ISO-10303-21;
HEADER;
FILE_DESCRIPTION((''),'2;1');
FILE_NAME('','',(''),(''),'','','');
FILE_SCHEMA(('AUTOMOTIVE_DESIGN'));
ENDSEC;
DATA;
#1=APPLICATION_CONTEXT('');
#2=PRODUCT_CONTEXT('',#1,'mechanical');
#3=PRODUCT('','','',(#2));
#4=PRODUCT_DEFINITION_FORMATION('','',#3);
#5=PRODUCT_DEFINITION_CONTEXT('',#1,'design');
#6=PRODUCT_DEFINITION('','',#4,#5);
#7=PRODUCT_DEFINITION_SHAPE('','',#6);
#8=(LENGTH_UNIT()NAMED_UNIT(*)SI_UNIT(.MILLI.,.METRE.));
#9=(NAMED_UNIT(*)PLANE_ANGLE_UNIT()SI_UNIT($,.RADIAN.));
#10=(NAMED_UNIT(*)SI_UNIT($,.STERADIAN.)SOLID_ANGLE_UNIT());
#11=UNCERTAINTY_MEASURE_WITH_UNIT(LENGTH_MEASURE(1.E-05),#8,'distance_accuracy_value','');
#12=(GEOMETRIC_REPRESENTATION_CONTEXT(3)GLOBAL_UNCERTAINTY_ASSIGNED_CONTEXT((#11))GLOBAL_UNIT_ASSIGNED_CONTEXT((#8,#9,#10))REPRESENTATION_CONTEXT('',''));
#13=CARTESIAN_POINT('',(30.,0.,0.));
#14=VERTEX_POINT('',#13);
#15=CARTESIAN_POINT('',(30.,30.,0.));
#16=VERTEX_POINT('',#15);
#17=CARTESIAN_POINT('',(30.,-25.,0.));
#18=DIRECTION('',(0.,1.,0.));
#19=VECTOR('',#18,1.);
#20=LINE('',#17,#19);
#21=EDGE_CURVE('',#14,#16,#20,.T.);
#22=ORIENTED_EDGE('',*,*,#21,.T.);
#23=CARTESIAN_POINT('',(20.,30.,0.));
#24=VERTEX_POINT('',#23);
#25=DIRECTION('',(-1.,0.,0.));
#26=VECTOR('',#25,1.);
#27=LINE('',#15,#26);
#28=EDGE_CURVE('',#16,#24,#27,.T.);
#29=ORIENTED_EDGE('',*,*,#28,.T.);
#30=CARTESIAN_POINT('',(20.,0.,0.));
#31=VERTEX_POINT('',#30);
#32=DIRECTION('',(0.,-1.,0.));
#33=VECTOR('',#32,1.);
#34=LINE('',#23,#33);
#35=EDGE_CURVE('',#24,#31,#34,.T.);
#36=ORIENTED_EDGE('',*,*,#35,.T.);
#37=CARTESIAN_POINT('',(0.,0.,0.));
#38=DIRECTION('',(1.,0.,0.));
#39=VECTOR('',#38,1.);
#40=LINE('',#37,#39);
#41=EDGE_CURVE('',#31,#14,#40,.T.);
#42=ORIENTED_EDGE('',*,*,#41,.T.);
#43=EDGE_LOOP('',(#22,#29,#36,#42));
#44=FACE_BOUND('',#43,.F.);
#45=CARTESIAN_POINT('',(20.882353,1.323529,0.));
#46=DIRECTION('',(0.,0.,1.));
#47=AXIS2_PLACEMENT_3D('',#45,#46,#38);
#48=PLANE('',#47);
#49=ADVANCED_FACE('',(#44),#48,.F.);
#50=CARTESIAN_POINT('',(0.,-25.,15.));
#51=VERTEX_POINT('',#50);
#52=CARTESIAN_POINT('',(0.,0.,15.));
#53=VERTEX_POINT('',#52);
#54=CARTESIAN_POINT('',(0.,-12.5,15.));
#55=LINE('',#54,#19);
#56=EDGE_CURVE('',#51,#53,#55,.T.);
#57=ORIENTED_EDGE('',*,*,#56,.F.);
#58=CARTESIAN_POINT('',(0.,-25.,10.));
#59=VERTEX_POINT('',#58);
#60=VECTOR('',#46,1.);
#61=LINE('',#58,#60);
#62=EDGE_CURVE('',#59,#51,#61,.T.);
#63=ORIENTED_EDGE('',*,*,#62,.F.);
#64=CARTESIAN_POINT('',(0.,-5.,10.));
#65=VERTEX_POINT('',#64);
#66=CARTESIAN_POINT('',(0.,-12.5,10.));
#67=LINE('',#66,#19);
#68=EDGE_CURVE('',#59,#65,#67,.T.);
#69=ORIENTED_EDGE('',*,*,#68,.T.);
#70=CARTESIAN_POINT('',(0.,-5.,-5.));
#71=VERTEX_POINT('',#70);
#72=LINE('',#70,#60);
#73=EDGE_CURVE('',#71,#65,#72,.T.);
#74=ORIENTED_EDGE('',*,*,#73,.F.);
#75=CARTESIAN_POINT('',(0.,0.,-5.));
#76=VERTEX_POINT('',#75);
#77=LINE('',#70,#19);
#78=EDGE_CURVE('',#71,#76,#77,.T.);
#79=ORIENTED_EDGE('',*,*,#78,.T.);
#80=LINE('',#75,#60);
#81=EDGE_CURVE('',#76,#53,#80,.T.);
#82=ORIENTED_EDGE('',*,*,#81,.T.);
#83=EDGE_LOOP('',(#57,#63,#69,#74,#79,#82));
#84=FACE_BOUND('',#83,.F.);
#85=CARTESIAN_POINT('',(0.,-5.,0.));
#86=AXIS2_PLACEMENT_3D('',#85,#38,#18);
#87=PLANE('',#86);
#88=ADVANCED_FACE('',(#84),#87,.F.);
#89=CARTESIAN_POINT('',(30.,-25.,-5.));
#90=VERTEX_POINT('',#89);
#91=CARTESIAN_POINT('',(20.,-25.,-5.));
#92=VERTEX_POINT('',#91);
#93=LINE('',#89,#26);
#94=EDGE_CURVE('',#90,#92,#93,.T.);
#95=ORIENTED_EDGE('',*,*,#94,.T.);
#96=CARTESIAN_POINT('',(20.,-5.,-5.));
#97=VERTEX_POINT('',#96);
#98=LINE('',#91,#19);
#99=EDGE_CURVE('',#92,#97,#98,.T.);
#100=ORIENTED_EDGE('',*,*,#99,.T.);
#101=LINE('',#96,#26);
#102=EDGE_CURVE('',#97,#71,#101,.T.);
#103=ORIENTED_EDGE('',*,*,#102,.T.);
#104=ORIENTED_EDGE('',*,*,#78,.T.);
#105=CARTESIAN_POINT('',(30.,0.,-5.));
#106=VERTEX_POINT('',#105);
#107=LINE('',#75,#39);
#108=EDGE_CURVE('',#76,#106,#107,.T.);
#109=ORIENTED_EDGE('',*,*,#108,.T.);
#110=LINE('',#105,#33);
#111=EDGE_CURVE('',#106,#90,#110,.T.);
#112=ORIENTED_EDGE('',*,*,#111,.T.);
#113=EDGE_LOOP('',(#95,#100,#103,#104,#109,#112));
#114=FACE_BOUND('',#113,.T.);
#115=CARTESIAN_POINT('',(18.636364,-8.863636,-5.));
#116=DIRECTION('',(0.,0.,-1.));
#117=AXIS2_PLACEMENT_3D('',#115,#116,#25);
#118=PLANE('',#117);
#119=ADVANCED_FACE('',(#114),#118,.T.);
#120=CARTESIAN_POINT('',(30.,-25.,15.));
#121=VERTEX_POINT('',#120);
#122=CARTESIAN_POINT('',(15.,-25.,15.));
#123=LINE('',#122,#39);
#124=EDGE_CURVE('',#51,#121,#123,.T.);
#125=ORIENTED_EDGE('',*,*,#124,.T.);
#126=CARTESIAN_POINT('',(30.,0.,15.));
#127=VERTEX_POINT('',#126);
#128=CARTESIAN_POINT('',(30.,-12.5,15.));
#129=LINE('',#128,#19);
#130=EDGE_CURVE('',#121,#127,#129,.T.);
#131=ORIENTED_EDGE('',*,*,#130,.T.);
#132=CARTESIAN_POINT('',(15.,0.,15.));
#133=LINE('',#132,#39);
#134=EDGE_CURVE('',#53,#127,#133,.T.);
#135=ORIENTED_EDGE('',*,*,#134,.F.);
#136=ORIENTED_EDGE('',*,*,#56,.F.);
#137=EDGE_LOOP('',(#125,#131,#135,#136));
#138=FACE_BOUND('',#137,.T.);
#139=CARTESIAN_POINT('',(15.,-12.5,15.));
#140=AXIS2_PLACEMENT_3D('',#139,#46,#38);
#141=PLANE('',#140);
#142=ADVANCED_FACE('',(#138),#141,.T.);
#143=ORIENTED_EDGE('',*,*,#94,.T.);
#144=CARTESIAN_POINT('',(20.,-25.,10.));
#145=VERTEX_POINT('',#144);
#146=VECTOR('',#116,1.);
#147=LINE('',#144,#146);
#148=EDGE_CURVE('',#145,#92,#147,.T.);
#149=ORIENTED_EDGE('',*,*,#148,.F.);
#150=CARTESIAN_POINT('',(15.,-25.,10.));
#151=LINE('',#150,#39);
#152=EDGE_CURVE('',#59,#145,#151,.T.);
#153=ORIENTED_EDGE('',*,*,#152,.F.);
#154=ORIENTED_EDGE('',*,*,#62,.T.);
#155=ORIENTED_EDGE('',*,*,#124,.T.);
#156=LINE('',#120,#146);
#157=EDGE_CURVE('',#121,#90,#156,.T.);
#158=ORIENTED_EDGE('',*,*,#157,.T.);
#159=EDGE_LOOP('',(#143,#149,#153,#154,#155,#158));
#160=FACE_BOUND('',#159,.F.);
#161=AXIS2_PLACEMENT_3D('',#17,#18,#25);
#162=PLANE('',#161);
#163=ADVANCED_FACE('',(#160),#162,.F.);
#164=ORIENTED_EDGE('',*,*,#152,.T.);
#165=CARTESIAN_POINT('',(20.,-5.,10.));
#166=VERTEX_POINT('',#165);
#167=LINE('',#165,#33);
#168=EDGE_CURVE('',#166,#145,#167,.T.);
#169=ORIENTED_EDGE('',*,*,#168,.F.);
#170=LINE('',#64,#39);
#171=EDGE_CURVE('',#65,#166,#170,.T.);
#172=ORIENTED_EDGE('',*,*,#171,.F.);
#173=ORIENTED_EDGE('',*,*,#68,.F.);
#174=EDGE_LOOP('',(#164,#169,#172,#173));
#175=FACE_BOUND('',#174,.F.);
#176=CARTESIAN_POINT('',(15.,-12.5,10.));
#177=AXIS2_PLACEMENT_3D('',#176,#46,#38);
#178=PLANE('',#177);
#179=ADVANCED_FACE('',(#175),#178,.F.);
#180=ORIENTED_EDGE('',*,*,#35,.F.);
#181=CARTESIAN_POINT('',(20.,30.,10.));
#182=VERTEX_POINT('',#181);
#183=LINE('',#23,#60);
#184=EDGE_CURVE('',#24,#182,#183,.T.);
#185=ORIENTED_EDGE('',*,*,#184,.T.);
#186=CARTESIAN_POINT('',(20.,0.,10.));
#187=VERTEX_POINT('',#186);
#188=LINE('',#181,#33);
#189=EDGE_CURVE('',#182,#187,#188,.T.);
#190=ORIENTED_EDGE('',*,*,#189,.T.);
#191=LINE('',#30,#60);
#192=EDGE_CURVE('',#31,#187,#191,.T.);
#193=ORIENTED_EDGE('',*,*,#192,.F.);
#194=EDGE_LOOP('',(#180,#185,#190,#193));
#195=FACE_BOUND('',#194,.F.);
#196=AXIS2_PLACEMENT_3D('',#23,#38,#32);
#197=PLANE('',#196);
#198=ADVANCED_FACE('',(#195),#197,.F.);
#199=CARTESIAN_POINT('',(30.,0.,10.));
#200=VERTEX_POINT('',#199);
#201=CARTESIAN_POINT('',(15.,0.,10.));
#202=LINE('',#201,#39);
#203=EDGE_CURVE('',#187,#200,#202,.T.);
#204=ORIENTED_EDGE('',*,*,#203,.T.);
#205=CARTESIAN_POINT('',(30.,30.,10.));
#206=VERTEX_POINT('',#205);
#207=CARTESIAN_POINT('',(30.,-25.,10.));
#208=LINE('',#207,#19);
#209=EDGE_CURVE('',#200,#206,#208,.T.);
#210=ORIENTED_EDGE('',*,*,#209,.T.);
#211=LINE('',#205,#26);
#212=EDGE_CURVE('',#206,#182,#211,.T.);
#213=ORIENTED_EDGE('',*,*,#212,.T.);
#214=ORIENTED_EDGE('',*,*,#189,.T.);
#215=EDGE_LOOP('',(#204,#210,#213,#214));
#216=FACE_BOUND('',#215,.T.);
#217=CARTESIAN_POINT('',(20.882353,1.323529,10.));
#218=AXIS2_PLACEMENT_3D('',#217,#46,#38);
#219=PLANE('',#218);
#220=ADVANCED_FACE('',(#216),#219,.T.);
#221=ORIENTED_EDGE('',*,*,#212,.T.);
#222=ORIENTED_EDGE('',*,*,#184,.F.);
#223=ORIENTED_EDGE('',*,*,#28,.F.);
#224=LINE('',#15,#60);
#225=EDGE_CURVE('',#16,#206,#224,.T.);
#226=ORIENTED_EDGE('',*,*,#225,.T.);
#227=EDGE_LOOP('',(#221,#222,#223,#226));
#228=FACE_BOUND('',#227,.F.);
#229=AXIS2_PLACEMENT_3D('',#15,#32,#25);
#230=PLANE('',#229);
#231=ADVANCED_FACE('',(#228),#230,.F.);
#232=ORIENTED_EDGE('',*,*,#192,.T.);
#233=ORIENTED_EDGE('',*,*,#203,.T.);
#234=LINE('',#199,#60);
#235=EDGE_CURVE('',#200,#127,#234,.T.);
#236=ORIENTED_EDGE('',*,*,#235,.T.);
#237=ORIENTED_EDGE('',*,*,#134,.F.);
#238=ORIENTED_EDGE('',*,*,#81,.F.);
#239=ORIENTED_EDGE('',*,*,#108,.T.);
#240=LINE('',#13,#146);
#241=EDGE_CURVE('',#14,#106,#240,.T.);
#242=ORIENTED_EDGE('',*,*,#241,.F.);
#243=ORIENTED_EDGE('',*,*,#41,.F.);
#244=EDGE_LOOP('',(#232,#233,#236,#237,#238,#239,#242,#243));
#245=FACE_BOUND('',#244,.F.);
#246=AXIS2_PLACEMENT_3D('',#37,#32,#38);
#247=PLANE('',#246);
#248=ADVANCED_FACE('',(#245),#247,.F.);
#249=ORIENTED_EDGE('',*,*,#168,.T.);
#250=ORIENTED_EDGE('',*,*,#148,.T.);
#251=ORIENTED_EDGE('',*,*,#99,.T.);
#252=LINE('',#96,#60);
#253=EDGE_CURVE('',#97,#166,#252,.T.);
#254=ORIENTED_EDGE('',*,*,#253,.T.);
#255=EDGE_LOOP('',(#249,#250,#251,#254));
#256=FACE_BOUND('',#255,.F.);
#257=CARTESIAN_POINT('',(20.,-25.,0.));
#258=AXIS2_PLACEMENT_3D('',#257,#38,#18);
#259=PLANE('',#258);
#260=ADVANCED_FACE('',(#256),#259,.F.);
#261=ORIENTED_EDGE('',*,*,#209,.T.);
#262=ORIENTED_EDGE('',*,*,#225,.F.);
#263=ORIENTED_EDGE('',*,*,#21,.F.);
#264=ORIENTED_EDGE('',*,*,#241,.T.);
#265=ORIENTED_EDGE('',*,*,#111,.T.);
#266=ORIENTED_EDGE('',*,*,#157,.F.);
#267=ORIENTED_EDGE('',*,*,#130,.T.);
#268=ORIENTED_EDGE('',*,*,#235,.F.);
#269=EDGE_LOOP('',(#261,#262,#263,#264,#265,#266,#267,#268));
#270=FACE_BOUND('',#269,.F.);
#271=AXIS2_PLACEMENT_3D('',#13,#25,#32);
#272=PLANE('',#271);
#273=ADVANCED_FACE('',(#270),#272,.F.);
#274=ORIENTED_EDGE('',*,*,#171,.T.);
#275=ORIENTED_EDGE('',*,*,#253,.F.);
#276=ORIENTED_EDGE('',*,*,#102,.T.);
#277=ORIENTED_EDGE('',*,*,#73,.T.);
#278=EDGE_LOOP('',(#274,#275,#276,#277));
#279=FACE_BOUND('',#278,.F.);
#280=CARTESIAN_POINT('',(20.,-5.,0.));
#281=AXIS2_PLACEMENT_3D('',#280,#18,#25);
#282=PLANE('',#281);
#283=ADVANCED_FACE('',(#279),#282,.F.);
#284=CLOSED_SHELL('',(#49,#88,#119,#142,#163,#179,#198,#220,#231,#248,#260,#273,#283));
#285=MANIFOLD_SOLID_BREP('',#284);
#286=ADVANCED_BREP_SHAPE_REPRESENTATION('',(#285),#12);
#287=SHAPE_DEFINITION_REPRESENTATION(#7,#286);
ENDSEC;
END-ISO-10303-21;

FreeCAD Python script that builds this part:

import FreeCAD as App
import Part
import Sketcher

V = App.Vector


def add_polygon(sketch, points):
    """Adds a closed chain of lines whose ends are joined by coincident constraints."""
    first, n = sketch.GeometryCount, len(points)
    for a, b in zip(points, points[1:] + points[:1]):
        sketch.addGeometry(Part.LineSegment(App.Vector(*a, 0), App.Vector(*b, 0)), False)
    for i in range(n):
        sketch.addConstraint(Sketcher.Constraint("Coincident", first + i, 2, first + (i + 1) % n, 1))

doc = App.newDocument("Part")
body = doc.addObject("PartDesign::Body", "Body")

# Sketch on XY plane
sketch1 = body.newObject("Sketcher::SketchObject", "Sketch")
sketch1.AttachmentSupport = (doc.getObject("XY_Plane"), [""])
sketch1.MapMode = "FlatFace"
add_polygon(sketch1, [(0, 0), (0, -5), (20, -5), (20, -25), (30, -25), (30, 30), (20, 30), (20, 0)])  # lines 0-7
sketch1.addConstraint(Sketcher.Constraint("Vertical", 0))
sketch1.addConstraint(Sketcher.Constraint("Horizontal", 1))
sketch1.addConstraint(Sketcher.Constraint("Vertical", 2))
sketch1.addConstraint(Sketcher.Constraint("Horizontal", 3))
sketch1.addConstraint(Sketcher.Constraint("Vertical", 4))
sketch1.addConstraint(Sketcher.Constraint("Horizontal", 5))
sketch1.addConstraint(Sketcher.Constraint("Vertical", 6))
sketch1.addConstraint(Sketcher.Constraint("Horizontal", 7))
sketch1.addConstraint(Sketcher.Constraint("Coincident", 7, 2, -1, 1))
sketch1.addConstraint(Sketcher.Constraint("Vertical", 2, 2, 5, 2))
sketch1.addConstraint(Sketcher.Constraint("Equal", 7, 2))
sketch1.addConstraint(Sketcher.Constraint("DistanceX", 1, 1, 1, 2, 20.0))
sketch1.addConstraint(Sketcher.Constraint("DistanceX", 3, 1, 3, 2, 10.0))
sketch1.addConstraint(Sketcher.Constraint("DistanceY", 0, 2, 0, 1, 5.0))
sketch1.addConstraint(Sketcher.Constraint("DistanceY", 4, 1, 4, 2, 55.0))
pad1 = body.newObject("PartDesign::Pad", "Pad")
pad1.Profile = sketch1
pad1.Length = 10

# Sketch on XY plane
sketch2 = body.newObject("Sketcher::SketchObject", "Sketch001")
sketch2.AttachmentSupport = (doc.getObject("XY_Plane"), [""])
sketch2.MapMode = "FlatFace"
sketch2.AttachmentOffset = App.Placement(V(0, 0, 10), App.Rotation())
add_polygon(sketch2, [(0, 0), (0, -25), (30, -25), (30, 0)])  # lines 0-3
sketch2.addConstraint(Sketcher.Constraint("Vertical", 0))
sketch2.addConstraint(Sketcher.Constraint("Horizontal", 1))
sketch2.addConstraint(Sketcher.Constraint("Vertical", 2))
sketch2.addConstraint(Sketcher.Constraint("Horizontal", 3))
sketch2.addConstraint(Sketcher.Constraint("Coincident", 3, 2, -1, 1))
sketch2.addConstraint(Sketcher.Constraint("DistanceX", 1, 1, 1, 2, 30.0))
sketch2.addConstraint(Sketcher.Constraint("DistanceY", 0, 2, 0, 1, 25.0))
pad2 = body.newObject("PartDesign::Pad", "Pad001")
pad2.Profile = sketch2
pad2.Length = 5

# Sketch on XY plane
sketch3 = body.newObject("Sketcher::SketchObject", "Sketch002")
sketch3.AttachmentSupport = (doc.getObject("XY_Plane"), [""])
sketch3.MapMode = "FlatFace"
add_polygon(sketch3, [(0, 0), (30, 0), (30, -25), (20, -25), (20, -5), (0, -5)])  # lines 0-5
sketch3.addConstraint(Sketcher.Constraint("Horizontal", 0))
sketch3.addConstraint(Sketcher.Constraint("Vertical", 1))
sketch3.addConstraint(Sketcher.Constraint("Horizontal", 2))
sketch3.addConstraint(Sketcher.Constraint("Vertical", 3))
sketch3.addConstraint(Sketcher.Constraint("Horizontal", 4))
sketch3.addConstraint(Sketcher.Constraint("Vertical", 5))
sketch3.addConstraint(Sketcher.Constraint("Coincident", 5, 2, -1, 1))
sketch3.addConstraint(Sketcher.Constraint("Equal", 4, 3))
sketch3.addConstraint(Sketcher.Constraint("DistanceX", 0, 1, 0, 2, 30.0))
sketch3.addConstraint(Sketcher.Constraint("DistanceX", 2, 2, 2, 1, 10.0))
sketch3.addConstraint(Sketcher.Constraint("DistanceY", 1, 2, 1, 1, 25.0))
pad3 = body.newObject("PartDesign::Pad", "Pad002")
pad3.Profile = sketch3
pad3.Length = 5
pad3.Reversed = True

doc.recompute()
